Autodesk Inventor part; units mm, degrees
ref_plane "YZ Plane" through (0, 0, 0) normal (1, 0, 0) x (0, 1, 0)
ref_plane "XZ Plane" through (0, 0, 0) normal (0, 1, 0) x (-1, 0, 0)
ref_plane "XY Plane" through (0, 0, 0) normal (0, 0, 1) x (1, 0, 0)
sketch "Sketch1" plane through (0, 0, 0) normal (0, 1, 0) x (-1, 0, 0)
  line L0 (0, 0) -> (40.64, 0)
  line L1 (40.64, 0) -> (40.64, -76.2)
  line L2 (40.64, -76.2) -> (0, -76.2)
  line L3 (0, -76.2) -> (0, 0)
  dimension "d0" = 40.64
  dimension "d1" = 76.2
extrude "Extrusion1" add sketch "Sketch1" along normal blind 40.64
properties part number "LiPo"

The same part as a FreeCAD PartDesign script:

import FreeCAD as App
import Part
import Sketcher
Q = App.Units.Quantity


def add_polygon(sketch, points):
    """Adds a closed chain of lines whose ends are joined by coincident constraints."""
    first, n = sketch.GeometryCount, len(points)
    for a, b in zip(points, points[1:] + points[:1]):
        sketch.addGeometry(Part.LineSegment(App.Vector(*a, 0), App.Vector(*b, 0)), False)
    for i in range(n):
        sketch.addConstraint(Sketcher.Constraint("Coincident", first + i, 2, first + (i + 1) % n, 1))

doc = App.newDocument("Part")
params = doc.addObject("Spreadsheet::Sheet", "Params")
for row, (alias, value) in enumerate([
    ("sketch1_height", "3 in"),
    ("sketch1_width", "1.6 in"),
    ("pad1_length", "1.6 in"),
], start=1):
    params.set(f"A{row}", alias)
    params.set(f"B{row}", "=" + value)
    params.setAlias(f"B{row}", alias)

body = doc.addObject("PartDesign::Body", "Body")

# Sketch on XZ plane
sketch1 = body.newObject("Sketcher::SketchObject", "Sketch")
sketch1.AttachmentSupport = (doc.getObject("XZ_Plane"), [""])
sketch1.MapMode = "FlatFace"
add_polygon(sketch1, [(-41, 0), (0, 0), (0, -76), (-41, -76)])  # lines 0-3
sketch1.addConstraint([
    Sketcher.Constraint("Horizontal", 0),
    Sketcher.Constraint("Vertical", 1),
    Sketcher.Constraint("Horizontal", 2),
    Sketcher.Constraint("Vertical", 3),
    Sketcher.Constraint("Coincident", 0, 2, -1, 1),
    Sketcher.Constraint("DistanceY", 1, 2, 1, 1, Q("3 in")),
    Sketcher.Constraint("DistanceX", 0, 1, 0, 2, Q("1.6 in")),
])
sketch1.setExpression("Constraints[9]", "Params.sketch1_height")
sketch1.setExpression("Constraints[10]", "Params.sketch1_width")
pad1 = body.newObject("PartDesign::Pad", "Pad")
pad1.Profile = sketch1
pad1.setExpression("Length", "Params.pad1_length")
pad1.Reversed = True

doc.recompute()
